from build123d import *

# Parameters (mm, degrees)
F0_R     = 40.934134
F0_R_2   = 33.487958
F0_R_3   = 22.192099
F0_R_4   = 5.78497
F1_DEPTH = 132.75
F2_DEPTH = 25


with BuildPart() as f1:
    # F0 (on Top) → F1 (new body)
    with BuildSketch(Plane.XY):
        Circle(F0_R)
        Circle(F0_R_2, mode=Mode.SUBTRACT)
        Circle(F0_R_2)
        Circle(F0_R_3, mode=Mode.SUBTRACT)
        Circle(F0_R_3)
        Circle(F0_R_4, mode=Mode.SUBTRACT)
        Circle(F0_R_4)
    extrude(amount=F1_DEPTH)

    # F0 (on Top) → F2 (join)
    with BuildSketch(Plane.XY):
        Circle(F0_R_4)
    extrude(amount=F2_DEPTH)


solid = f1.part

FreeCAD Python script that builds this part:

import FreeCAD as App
import Part
import Sketcher
Q = App.Units.Quantity

doc = App.newDocument("Part")
body = doc.addObject("PartDesign::Body", "Body")

# Sketch on XY plane
sketch1 = body.newObject("Sketcher::SketchObject", "Sketch")
sketch1.AttachmentSupport = (doc.getObject("XY_Plane"), [""])
sketch1.MapMode = "FlatFace"
sketch1.addGeometry(Part.Circle(App.Vector(0, 0, 0), App.Vector(0, 0, 1), 41), False)
sketch1.addConstraint(Sketcher.Constraint("Coincident", 0, 3, -1, 1))
sketch1.addConstraint(Sketcher.Constraint("Diameter", 0, Q("81.868268 mm")))
pad1 = body.newObject("PartDesign::Pad", "Pad")
pad1.Profile = sketch1
pad1.Length = 132.75

# Sketch on XY plane
sketch2 = body.newObject("Sketcher::SketchObject", "Sketch001")
sketch2.AttachmentSupport = (doc.getObject("XY_Plane"), [""])
sketch2.MapMode = "FlatFace"
sketch2.addGeometry(Part.Circle(App.Vector(0, 0, 0), App.Vector(0, 0, 1), 6), False)
sketch2.addConstraint(Sketcher.Constraint("Coincident", 0, 3, -1, 1))
sketch2.addConstraint(Sketcher.Constraint("Diameter", 0, Q("11.56994 mm")))
pad2 = body.newObject("PartDesign::Pad", "Pad001")
pad2.Profile = sketch2
pad2.Length = 25

doc.recompute()
